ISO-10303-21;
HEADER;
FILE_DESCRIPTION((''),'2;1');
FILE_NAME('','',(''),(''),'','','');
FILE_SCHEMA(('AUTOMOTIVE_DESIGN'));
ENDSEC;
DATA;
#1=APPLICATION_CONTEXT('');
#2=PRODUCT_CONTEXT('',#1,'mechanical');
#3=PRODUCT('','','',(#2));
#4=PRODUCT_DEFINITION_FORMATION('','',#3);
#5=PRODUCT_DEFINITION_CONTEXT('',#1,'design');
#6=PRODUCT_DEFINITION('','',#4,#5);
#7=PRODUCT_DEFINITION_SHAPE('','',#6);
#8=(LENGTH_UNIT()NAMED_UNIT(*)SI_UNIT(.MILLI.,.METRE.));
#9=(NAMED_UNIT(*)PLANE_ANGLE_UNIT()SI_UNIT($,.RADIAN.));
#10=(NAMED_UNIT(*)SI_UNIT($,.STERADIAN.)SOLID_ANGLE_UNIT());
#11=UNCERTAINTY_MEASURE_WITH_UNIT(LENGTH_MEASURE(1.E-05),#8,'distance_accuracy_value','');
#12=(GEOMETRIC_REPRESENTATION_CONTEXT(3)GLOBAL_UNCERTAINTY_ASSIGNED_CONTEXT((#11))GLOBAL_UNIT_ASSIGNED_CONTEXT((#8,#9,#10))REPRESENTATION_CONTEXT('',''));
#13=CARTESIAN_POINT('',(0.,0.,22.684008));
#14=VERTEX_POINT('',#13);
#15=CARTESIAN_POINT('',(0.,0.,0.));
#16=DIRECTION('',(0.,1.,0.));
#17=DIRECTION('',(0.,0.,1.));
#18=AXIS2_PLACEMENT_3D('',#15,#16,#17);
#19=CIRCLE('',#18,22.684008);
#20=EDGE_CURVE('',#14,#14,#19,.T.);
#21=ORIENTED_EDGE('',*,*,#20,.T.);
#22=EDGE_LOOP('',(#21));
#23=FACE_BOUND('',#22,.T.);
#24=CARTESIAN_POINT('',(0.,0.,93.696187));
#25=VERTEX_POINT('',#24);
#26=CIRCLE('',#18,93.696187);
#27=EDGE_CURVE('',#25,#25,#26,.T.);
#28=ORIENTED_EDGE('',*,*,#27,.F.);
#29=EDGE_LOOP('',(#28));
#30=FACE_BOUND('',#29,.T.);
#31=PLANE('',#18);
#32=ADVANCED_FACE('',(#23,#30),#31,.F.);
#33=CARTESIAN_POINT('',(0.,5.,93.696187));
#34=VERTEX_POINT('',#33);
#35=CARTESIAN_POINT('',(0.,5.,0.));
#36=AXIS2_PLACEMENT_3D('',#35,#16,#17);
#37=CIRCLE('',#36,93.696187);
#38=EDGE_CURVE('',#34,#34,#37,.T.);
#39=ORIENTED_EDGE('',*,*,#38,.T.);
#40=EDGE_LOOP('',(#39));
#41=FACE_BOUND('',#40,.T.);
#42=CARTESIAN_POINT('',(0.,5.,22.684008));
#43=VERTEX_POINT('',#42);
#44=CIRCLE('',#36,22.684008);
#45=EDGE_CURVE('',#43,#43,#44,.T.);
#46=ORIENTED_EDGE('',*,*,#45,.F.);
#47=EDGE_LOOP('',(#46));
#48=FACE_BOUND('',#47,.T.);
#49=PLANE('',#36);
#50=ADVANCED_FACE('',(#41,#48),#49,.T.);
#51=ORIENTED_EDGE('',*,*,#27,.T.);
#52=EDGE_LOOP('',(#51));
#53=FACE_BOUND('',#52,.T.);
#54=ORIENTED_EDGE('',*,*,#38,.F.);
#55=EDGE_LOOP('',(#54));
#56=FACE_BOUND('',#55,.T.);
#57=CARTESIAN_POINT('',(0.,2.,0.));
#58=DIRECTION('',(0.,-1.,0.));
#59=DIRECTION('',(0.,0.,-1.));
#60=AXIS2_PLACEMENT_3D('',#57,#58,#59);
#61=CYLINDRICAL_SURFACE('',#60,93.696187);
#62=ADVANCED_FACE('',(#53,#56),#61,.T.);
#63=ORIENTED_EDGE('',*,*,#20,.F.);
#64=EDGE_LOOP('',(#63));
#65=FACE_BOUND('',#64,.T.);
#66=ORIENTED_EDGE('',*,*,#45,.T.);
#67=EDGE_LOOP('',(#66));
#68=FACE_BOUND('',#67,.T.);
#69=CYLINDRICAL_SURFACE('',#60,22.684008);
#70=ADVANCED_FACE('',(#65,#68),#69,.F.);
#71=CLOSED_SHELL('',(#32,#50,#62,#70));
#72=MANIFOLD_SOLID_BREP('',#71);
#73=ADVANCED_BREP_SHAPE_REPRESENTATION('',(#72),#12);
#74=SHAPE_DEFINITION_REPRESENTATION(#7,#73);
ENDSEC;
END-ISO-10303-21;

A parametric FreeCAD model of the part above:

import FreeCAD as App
import Part
import Sketcher

V = App.Vector
Q = App.Units.Quantity

doc = App.newDocument("Part")
params = doc.addObject("Spreadsheet::Sheet", "Params")
for row, (alias, value) in enumerate([
    ("pad1_length", "2 mm"),
    ("pad2_length", "5 mm"),
], start=1):
    params.set(f"A{row}", alias)
    params.set(f"B{row}", "=" + value)
    params.setAlias(f"B{row}", alias)

body = doc.addObject("PartDesign::Body", "Body")

# Sketch on XZ plane
sketch1 = body.newObject("Sketcher::SketchObject", "Sketch")
sketch1.AttachmentSupport = (doc.getObject("XZ_Plane"), [""])
sketch1.MapMode = "FlatFace"
sketch1.addGeometry(Part.Circle(V(0, 0, 0), V(0, 0, 1), 94), False)
sketch1.addGeometry(Part.Circle(V(0, 0, 0), V(0, 0, 1), 23), False)
sketch1.addConstraint(Sketcher.Constraint("Coincident", 0, 3, -1, 1))
sketch1.addConstraint(Sketcher.Constraint("Coincident", 1, 3, -1, 1))
sketch1.addConstraint(Sketcher.Constraint("Diameter", 0, Q("187.392375 mm")))
sketch1.addConstraint(Sketcher.Constraint("Diameter", 1, Q("45.368015 mm")))
pad1 = body.newObject("PartDesign::Pad", "Pad")
pad1.Profile = sketch1
pad1.setExpression("Length", "Params.pad1_length")
pad1.Reversed = True

# Sketch on XZ plane
sketch2 = body.newObject("Sketcher::SketchObject", "Sketch001")
sketch2.AttachmentSupport = (doc.getObject("XZ_Plane"), [""])
sketch2.MapMode = "FlatFace"
sketch2.addGeometry(Part.Circle(V(0, 0, 0), V(0, 0, 1), 94), False)
sketch2.addGeometry(Part.Circle(V(0, 0, 0), V(0, 0, 1), 23), False)
sketch2.addConstraint(Sketcher.Constraint("Coincident", 0, 3, -1, 1))
sketch2.addConstraint(Sketcher.Constraint("Coincident", 1, 3, -1, 1))
sketch2.addConstraint(Sketcher.Constraint("Diameter", 0, Q("187.392375 mm")))
sketch2.addConstraint(Sketcher.Constraint("Diameter", 1, Q("45.368015 mm")))
pad2 = body.newObject("PartDesign::Pad", "Pad001")
pad2.Profile = sketch2
pad2.setExpression("Length", "Params.pad2_length")
pad2.Reversed = True

doc.recompute()
